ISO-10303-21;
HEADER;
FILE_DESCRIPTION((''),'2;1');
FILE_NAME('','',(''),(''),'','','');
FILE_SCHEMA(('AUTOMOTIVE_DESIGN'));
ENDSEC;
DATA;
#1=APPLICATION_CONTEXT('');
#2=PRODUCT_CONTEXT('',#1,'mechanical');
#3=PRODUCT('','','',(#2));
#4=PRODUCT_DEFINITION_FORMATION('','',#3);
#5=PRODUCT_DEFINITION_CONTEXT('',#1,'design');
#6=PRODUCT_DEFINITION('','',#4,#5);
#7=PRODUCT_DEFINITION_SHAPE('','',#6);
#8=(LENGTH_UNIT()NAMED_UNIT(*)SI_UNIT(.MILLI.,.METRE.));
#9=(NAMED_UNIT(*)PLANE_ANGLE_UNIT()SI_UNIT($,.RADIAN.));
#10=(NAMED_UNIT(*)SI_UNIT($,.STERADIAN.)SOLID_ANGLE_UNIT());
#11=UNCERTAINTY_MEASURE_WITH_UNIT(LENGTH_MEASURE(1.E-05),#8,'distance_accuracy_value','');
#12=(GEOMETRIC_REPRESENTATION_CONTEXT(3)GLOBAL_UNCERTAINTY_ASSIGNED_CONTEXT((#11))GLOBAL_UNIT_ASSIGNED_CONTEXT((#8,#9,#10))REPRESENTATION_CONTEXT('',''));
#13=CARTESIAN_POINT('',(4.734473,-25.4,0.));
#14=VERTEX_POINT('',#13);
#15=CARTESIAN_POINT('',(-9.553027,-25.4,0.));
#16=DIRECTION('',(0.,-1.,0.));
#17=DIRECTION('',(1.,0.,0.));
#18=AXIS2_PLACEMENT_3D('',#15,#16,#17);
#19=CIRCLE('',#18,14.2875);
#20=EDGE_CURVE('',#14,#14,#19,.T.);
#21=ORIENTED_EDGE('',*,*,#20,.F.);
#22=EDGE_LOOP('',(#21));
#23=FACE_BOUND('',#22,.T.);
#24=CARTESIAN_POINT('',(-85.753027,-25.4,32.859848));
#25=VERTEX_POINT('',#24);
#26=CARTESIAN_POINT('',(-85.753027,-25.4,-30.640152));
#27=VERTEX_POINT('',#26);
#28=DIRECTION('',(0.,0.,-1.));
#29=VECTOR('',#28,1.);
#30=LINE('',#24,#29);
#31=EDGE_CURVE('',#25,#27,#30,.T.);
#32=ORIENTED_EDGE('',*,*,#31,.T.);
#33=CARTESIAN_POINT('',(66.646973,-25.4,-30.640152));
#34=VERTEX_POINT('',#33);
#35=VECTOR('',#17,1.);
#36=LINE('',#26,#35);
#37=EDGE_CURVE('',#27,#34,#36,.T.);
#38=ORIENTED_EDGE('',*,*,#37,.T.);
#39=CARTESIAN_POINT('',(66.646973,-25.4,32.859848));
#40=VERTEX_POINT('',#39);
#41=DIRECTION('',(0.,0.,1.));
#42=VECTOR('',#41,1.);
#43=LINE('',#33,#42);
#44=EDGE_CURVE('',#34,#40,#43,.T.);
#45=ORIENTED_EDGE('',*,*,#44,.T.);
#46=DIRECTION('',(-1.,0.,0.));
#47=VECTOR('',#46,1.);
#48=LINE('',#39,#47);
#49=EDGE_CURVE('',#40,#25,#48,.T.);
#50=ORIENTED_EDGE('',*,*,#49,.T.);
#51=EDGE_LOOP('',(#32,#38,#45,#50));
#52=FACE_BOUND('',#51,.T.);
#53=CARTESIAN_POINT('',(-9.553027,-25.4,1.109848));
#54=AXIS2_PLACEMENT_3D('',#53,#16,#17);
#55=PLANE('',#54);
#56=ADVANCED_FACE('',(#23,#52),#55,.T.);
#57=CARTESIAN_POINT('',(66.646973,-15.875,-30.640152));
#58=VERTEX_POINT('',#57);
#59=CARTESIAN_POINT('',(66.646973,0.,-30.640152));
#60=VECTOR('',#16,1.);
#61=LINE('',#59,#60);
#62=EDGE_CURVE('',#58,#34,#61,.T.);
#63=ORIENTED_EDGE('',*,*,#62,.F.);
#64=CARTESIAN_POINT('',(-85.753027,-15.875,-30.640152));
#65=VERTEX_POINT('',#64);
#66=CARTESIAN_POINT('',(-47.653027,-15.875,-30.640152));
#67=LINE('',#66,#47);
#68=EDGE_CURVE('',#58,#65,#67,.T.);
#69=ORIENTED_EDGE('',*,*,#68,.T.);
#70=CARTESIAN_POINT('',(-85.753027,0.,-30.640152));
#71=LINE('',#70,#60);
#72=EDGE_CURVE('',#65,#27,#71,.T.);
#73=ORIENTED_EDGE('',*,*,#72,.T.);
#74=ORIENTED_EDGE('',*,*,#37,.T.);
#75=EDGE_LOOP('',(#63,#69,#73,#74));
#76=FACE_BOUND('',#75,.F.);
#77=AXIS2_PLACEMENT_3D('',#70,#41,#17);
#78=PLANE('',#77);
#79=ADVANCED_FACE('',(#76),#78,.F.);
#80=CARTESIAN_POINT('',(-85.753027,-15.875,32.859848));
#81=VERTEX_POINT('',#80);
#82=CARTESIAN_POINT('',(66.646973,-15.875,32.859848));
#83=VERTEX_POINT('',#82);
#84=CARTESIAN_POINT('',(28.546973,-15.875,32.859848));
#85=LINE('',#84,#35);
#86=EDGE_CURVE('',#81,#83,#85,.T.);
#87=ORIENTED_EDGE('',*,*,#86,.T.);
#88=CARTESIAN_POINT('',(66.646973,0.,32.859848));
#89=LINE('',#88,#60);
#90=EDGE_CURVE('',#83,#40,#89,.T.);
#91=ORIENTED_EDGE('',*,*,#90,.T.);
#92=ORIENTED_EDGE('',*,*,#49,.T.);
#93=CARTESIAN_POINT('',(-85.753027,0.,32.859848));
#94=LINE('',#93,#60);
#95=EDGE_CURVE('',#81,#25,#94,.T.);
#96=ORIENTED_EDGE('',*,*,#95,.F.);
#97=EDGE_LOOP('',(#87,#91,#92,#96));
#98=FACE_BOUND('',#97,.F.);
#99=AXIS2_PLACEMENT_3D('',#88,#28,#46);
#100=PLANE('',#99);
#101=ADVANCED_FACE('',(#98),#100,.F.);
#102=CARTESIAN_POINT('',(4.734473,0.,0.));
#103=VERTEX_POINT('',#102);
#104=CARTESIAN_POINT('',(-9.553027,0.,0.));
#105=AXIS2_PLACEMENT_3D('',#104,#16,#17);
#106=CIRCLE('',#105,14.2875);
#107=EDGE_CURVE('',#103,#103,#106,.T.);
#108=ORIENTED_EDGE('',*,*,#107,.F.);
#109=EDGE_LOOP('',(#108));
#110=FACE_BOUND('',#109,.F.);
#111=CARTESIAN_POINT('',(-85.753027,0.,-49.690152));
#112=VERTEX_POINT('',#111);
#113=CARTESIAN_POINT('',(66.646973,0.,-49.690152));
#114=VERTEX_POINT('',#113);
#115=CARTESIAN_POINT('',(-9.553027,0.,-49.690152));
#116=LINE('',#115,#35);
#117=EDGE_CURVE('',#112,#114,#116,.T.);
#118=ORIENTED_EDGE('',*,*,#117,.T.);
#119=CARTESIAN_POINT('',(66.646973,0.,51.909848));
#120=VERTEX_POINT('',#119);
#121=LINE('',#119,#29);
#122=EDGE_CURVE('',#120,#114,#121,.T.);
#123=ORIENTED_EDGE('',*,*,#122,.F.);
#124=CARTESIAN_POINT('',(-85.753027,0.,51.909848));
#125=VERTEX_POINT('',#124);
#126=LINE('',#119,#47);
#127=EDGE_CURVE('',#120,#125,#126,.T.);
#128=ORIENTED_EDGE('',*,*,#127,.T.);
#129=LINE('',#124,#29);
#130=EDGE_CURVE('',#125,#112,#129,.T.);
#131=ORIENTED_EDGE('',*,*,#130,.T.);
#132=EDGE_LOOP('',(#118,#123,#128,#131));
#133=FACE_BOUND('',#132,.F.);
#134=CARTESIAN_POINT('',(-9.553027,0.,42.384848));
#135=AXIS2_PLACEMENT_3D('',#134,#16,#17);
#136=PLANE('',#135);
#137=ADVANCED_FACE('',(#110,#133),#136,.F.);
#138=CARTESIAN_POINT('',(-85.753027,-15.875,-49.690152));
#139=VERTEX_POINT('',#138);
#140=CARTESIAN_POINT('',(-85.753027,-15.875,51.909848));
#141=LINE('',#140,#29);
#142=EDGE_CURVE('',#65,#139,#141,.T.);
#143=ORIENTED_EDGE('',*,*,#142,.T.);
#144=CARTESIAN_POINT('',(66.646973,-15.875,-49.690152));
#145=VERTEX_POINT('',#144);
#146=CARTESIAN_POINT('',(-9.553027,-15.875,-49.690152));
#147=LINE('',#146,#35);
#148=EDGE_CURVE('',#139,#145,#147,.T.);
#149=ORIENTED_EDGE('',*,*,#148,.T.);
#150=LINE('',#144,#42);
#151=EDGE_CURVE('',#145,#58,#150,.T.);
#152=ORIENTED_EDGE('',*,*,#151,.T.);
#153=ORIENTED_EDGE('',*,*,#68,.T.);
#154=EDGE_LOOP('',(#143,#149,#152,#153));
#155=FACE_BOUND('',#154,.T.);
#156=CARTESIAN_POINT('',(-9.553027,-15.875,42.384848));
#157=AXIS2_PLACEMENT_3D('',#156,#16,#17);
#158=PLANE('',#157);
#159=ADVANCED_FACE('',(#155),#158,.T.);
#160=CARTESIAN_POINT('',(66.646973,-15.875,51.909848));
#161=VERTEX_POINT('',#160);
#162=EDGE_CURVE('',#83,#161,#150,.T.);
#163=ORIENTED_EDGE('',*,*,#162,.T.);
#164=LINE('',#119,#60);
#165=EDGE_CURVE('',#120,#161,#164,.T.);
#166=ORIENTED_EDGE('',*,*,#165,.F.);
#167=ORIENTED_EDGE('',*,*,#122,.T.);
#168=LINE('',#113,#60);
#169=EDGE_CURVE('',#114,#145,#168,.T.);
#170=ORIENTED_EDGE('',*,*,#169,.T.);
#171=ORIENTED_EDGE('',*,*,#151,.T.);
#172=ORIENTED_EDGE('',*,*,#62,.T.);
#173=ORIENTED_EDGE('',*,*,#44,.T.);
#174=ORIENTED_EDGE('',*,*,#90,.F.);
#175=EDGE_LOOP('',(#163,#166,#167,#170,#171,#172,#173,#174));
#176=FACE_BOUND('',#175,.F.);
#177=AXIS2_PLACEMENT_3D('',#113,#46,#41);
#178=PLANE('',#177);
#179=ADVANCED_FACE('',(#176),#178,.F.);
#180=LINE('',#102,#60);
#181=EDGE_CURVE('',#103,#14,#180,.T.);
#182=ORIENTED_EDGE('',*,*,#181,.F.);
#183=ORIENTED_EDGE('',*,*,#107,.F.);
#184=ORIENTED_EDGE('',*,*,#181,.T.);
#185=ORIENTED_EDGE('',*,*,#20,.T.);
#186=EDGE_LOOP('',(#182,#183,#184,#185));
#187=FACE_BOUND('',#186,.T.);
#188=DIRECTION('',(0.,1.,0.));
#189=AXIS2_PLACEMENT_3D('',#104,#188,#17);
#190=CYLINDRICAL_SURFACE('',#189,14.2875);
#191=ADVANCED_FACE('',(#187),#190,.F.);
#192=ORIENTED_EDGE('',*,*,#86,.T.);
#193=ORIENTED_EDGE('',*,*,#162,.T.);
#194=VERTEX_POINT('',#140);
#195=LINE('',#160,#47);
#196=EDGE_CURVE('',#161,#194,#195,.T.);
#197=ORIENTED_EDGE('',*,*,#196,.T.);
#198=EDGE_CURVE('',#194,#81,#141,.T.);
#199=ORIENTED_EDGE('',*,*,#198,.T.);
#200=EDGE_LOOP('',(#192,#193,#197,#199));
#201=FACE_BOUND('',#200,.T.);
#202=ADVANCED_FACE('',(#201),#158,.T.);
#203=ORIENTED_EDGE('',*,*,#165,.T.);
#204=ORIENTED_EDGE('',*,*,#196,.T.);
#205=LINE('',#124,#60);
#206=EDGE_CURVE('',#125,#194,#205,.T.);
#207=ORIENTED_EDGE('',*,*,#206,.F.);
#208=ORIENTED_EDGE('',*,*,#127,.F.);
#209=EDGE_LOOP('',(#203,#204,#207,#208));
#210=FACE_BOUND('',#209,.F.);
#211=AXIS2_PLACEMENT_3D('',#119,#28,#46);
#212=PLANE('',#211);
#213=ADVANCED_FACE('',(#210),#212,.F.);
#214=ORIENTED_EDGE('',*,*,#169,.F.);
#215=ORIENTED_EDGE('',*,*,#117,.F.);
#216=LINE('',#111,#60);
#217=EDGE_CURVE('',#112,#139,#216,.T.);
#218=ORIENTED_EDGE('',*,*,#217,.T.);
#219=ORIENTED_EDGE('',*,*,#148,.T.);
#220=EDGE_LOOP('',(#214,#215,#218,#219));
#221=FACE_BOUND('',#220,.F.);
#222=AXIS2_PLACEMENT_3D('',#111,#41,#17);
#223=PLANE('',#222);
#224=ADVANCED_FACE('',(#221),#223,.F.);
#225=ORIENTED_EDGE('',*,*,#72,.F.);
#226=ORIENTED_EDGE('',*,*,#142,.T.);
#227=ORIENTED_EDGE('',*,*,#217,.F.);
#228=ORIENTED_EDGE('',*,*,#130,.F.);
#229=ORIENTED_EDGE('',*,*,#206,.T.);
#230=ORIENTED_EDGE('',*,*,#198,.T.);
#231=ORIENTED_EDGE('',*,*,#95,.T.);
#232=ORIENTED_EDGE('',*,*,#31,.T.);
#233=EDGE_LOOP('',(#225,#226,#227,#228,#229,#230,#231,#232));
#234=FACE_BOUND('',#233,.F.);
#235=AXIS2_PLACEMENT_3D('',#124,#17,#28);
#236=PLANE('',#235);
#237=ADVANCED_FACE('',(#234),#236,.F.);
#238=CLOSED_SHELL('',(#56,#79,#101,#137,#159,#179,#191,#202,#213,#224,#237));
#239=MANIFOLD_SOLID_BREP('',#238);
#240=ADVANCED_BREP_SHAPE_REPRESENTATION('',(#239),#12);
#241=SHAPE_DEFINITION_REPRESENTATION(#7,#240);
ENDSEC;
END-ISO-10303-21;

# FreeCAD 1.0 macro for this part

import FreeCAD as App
import Part
import Sketcher
Q = App.Units.Quantity


def add_polygon(sketch, points):
    """Adds a closed chain of lines whose ends are joined by coincident constraints."""
    first, n = sketch.GeometryCount, len(points)
    for a, b in zip(points, points[1:] + points[:1]):
        sketch.addGeometry(Part.LineSegment(App.Vector(*a, 0), App.Vector(*b, 0)), False)
    for i in range(n):
        sketch.addConstraint(Sketcher.Constraint("Coincident", first + i, 2, first + (i + 1) % n, 1))

doc = App.newDocument("Part")
params = doc.addObject("Spreadsheet::Sheet", "Params")
for row, (alias, value) in enumerate([
    ("sketch1_width", "6 in"),
    ("sketch1_height", "4 in"),
    ("sketch1_diameter", "1.125 in"),
    ("pad1_length", "0.625 in"),
    ("sketch2_width", "6 in"),
    ("sketch2_diameter", "1.125 in"),
    ("sketch2_height", "2.5 in"),
    ("pad2_length", "1 in"),
], start=1):
    params.set(f"A{row}", alias)
    params.set(f"B{row}", "=" + value)
    params.setAlias(f"B{row}", alias)

body = doc.addObject("PartDesign::Body", "Body")

# Sketch on XZ plane
sketch1 = doc.addObject("Sketcher::SketchObject", "Sketch")
body.addObject(sketch1)
sketch1.AttachmentSupport = (doc.XZ_Plane, [""])
sketch1.MapMode = "FlatFace"
add_polygon(sketch1, [(-86, 52), (-86, -50), (67, -50), (67, 52)])  # lines 0-3
sketch1.addGeometry(Part.Circle(App.Vector(-10, 0, 0), App.Vector(0, 0, 1), 14), False)  # 4
sketch1.addConstraint(Sketcher.Constraint("Vertical", 0))
sketch1.addConstraint(Sketcher.Constraint("Horizontal", 1))
sketch1.addConstraint(Sketcher.Constraint("Vertical", 2))
sketch1.addConstraint(Sketcher.Constraint("Horizontal", 3))
sketch1.addConstraint(Sketcher.Constraint("PointOnObject", 4, 3, -1))
sketch1.addConstraint(Sketcher.Constraint("DistanceX", 1, 1, 1, 2, Q("6 in")))
sketch1.addConstraint(Sketcher.Constraint("DistanceY", 0, 2, 0, 1, Q("4 in")))
sketch1.addConstraint(Sketcher.Constraint("Diameter", 4, Q("1.125 in")))
sketch1.addConstraint(Sketcher.Constraint("DistanceX", 0, 2, 4, 3, Q("3 in")))
sketch1.addConstraint(Sketcher.Constraint("DistanceY", 0, 2, -1, 1, 49.690152))
sketch1.addConstraint(Sketcher.Constraint("DistanceX", 4, 3, -1, 1, 9.553027))
sketch1.setExpression("Constraints[9]", "Params.sketch1_width")
sketch1.setExpression("Constraints[10]", "Params.sketch1_height")
sketch1.setExpression("Constraints[11]", "Params.sketch1_diameter")
pad1 = doc.addObject("PartDesign::Pad", "Pad")
body.addObject(pad1)
pad1.Profile = sketch1
pad1.setExpression("Length", "Params.pad1_length")

# Sketch on XZ plane
sketch2 = doc.addObject("Sketcher::SketchObject", "Sketch001")
body.addObject(sketch2)
sketch2.AttachmentSupport = (doc.XZ_Plane, [""])
sketch2.MapMode = "FlatFace"
add_polygon(sketch2, [(67, 33), (-86, 33), (-86, -31), (67, -31)])  # lines 0-3
sketch2.addGeometry(Part.Circle(App.Vector(-10, 0, 0), App.Vector(0, 0, 1), 14), False)  # 4
sketch2.addConstraint(Sketcher.Constraint("Horizontal", 0))
sketch2.addConstraint(Sketcher.Constraint("Vertical", 1))
sketch2.addConstraint(Sketcher.Constraint("Horizontal", 2))
sketch2.addConstraint(Sketcher.Constraint("Vertical", 3))
sketch2.addConstraint(Sketcher.Constraint("PointOnObject", 4, 3, -1))
sketch2.addConstraint(Sketcher.Constraint("DistanceX", 0, 2, 0, 1, Q("6 in")))
sketch2.addConstraint(Sketcher.Constraint("Diameter", 4, Q("1.125 in")))
sketch2.addConstraint(Sketcher.Constraint("DistanceY", 1, 2, 1, 1, Q("2.5 in")))
sketch2.addConstraint(Sketcher.Constraint("DistanceX", 0, 2, 4, 3, Q("3 in")))
sketch2.addConstraint(Sketcher.Constraint("DistanceX", 4, 3, -1, 1, 9.553027))
sketch2.addConstraint(Sketcher.Constraint("DistanceY", -1, 1, 0, 2, 32.859848))
sketch2.setExpression("Constraints[9]", "Params.sketch2_width")
sketch2.setExpression("Constraints[10]", "Params.sketch2_diameter")
sketch2.setExpression("Constraints[11]", "Params.sketch2_height")
pad2 = doc.addObject("PartDesign::Pad", "Pad001")
body.addObject(pad2)
pad2.Profile = sketch2
pad2.setExpression("Length", "Params.pad2_length")

doc.recompute()
